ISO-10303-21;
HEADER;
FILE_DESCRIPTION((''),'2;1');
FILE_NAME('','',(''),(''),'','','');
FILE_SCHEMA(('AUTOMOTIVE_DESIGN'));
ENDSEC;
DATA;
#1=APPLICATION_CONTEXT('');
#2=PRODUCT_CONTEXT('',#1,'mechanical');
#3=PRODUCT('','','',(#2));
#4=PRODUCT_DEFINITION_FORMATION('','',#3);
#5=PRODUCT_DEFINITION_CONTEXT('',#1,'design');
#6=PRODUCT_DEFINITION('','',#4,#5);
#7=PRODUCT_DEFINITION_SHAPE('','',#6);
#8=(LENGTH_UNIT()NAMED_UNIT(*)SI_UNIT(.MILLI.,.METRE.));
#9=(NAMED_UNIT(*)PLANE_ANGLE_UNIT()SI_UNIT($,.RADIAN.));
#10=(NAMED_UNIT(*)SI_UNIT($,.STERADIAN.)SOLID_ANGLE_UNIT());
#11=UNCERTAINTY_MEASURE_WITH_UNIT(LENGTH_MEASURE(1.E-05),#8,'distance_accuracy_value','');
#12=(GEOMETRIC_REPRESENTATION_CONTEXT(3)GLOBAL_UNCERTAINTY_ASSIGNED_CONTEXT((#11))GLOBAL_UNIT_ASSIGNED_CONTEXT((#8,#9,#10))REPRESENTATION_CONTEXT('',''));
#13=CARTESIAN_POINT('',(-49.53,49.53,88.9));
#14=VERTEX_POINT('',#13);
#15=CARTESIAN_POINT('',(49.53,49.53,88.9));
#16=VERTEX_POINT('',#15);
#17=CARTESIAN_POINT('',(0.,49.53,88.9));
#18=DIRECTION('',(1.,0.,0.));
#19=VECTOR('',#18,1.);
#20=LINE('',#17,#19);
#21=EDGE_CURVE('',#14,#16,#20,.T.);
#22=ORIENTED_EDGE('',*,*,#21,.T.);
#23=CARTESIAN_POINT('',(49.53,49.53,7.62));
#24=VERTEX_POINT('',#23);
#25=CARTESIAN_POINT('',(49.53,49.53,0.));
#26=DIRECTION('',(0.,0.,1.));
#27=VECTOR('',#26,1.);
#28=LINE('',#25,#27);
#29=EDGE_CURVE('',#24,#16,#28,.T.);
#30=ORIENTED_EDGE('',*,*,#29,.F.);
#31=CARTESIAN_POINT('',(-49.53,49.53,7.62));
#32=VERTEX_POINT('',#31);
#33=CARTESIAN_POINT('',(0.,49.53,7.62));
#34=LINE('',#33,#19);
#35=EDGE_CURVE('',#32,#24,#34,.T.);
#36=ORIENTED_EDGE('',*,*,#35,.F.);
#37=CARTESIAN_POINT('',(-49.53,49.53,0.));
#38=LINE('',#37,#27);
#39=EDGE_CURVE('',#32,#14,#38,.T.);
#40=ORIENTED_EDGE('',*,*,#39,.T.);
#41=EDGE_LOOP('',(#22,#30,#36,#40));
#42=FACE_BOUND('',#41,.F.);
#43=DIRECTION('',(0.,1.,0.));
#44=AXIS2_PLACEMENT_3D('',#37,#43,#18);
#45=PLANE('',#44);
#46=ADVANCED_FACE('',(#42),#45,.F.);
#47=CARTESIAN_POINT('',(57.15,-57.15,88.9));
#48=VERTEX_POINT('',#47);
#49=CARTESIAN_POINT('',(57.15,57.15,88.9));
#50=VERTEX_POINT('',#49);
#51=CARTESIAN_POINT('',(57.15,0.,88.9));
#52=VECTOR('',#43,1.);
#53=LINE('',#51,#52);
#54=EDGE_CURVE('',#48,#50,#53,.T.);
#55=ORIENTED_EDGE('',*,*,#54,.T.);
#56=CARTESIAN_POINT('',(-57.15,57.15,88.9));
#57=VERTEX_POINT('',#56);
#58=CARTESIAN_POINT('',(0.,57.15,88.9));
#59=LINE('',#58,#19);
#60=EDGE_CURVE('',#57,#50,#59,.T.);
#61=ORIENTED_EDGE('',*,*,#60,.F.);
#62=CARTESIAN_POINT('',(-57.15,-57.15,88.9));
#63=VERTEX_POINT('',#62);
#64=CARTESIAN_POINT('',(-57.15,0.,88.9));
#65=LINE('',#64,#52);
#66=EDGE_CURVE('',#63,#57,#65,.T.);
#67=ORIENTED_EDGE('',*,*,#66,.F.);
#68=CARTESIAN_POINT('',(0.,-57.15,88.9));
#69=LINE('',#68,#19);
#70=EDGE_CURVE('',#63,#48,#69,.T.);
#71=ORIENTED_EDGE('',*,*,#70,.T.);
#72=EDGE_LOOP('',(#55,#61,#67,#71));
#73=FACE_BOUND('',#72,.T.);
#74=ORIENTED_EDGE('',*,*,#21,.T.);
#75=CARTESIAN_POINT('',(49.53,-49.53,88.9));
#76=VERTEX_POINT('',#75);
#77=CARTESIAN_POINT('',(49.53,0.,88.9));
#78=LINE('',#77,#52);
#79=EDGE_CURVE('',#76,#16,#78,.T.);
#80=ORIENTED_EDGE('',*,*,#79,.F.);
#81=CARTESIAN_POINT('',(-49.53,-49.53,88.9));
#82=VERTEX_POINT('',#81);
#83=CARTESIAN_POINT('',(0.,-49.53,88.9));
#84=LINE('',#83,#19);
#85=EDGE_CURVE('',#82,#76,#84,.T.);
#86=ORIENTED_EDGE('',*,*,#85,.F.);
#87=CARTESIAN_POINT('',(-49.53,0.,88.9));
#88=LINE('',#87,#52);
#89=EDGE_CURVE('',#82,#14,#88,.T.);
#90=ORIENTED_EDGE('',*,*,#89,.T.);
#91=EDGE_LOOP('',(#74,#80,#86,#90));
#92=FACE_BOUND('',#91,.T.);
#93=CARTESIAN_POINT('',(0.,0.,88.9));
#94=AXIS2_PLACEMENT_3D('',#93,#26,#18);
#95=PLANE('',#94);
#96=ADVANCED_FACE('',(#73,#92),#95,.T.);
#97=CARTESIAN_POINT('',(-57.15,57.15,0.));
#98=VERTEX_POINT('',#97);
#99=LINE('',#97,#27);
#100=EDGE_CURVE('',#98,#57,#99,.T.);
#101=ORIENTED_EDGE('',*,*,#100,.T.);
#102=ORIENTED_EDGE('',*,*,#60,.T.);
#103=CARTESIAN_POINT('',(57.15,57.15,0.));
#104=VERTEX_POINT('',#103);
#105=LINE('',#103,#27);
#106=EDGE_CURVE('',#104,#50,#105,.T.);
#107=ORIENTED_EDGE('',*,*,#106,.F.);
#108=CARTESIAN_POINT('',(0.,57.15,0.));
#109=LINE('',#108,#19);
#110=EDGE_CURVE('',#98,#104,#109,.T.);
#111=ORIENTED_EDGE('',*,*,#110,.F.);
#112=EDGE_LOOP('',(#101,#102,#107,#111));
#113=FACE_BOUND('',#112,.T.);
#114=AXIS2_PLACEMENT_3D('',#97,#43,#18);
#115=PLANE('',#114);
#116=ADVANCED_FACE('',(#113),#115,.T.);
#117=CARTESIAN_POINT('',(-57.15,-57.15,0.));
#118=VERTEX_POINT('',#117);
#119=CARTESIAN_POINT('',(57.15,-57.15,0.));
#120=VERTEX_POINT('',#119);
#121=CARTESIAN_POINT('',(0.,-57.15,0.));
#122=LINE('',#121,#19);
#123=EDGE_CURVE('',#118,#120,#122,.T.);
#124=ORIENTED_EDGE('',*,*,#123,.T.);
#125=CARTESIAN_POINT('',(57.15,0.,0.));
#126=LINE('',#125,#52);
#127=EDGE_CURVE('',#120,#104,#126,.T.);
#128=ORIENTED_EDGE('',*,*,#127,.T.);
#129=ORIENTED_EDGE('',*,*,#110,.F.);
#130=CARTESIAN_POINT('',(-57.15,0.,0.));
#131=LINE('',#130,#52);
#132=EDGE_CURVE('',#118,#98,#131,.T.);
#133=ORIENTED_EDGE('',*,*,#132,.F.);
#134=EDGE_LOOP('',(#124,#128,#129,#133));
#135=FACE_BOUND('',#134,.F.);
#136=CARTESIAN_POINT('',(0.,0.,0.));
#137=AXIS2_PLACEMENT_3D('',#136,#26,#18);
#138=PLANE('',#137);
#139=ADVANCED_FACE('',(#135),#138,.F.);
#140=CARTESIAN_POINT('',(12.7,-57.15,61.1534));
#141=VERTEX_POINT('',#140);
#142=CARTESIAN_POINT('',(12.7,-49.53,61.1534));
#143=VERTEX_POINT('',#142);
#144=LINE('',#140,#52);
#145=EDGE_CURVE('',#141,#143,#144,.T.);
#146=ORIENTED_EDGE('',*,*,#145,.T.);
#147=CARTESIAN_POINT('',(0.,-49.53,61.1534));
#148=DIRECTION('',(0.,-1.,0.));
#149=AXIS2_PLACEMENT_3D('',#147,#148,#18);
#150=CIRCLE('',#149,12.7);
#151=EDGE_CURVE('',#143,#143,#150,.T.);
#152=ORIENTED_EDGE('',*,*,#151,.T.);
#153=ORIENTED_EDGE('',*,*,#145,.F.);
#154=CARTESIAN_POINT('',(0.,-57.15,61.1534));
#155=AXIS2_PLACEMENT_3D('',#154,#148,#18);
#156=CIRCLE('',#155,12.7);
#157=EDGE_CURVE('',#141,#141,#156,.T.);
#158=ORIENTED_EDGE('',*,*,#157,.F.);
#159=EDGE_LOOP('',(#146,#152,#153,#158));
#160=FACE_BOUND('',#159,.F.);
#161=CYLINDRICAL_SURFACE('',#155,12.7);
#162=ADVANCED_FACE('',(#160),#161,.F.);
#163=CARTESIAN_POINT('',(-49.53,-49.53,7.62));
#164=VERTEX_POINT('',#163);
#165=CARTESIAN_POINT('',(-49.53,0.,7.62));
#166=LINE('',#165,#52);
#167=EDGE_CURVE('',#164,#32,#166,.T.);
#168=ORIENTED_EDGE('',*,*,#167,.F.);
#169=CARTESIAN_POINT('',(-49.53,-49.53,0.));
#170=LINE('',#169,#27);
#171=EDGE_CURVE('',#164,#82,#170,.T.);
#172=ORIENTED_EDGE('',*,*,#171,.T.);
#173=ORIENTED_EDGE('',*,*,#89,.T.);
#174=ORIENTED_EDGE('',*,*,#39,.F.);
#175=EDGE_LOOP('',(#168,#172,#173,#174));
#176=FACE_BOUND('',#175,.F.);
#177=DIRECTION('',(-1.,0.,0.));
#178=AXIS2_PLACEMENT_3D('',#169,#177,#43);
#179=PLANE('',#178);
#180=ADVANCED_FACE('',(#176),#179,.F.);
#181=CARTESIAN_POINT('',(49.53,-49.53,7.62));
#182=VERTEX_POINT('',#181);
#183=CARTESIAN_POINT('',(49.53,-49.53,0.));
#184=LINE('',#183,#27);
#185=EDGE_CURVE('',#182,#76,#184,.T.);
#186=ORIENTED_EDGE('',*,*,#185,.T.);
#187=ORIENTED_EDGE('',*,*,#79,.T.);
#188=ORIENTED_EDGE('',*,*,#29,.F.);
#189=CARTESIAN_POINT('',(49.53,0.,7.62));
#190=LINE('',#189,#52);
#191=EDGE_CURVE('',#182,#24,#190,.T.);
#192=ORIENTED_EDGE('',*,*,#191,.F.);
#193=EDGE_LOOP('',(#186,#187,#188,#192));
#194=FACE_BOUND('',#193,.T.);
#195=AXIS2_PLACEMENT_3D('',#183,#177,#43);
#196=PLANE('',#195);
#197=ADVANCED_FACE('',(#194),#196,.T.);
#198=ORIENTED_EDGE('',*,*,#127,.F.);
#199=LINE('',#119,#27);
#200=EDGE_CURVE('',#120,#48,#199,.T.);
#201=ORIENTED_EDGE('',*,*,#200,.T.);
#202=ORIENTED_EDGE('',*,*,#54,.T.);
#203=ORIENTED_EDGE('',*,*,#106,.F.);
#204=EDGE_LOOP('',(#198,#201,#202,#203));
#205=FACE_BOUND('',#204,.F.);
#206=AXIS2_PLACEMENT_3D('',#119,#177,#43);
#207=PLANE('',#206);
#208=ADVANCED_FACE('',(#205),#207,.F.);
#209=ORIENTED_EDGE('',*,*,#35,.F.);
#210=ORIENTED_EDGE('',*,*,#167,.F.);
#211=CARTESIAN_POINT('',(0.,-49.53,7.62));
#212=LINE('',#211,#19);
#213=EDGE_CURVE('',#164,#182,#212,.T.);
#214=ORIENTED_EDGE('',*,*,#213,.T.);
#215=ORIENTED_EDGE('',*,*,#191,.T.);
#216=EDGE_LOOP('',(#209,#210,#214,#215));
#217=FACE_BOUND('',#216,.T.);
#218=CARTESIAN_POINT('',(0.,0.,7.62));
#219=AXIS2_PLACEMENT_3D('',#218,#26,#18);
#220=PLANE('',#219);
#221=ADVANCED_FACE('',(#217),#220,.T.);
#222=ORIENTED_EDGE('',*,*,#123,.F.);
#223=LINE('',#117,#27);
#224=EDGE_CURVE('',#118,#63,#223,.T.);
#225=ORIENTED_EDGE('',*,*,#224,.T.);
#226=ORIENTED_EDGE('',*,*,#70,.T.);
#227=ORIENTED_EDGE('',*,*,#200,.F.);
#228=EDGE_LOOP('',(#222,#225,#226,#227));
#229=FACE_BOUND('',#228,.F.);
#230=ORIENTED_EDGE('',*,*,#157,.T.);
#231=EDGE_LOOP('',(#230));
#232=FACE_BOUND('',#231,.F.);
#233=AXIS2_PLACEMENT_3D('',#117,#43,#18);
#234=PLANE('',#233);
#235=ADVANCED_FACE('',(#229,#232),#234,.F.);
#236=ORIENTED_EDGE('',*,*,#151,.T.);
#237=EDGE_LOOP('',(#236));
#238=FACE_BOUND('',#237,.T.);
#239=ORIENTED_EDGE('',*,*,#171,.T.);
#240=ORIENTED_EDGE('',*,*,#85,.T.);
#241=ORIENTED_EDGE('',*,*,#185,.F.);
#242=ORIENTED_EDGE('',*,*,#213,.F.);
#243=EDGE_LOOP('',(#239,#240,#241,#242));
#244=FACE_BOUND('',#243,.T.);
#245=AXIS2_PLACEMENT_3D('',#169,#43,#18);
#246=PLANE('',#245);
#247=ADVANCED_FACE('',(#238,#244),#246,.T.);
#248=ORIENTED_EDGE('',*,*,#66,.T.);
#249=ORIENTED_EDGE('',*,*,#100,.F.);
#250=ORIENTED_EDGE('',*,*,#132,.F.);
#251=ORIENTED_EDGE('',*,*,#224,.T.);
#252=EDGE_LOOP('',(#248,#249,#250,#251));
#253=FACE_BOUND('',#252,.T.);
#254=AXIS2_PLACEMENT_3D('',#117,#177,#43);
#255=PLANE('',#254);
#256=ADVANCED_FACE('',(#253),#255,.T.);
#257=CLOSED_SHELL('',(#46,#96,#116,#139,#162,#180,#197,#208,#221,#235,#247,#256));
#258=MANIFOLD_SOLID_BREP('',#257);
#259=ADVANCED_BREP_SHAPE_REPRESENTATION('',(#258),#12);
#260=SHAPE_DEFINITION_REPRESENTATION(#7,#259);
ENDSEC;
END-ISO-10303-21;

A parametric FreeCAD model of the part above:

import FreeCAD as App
import Part
import Sketcher
from FreeCAD import Vector
Q = App.Units.Quantity

doc = App.newDocument("Part")
params = doc.addObject("Spreadsheet::Sheet", "Params")
for row, (alias, value) in enumerate([
    ("sketch1_width", "3.9 in"),
    ("pad1_length", "0.3 in"),
    ("sketch2_width", "4.5 in"),
    ("sketch2_width2", "3.9 in"),
    ("pad2_length", "3.5 in"),
    ("sketch3_diameter", "1 in"),
    ("pocket1_length", "19.127706 mm"),
], start=1):
    params.set(f"A{row}", alias)
    params.set(f"B{row}", "=" + value)
    params.setAlias(f"B{row}", alias)

body = doc.addObject("PartDesign::Body", "Body")

# Sketch on XY plane
sketch1 = body.newObject("Sketcher::SketchObject", "Sketch")
sketch1.AttachmentSupport = (doc.getObject("XY_Plane"), [""])
sketch1.MapMode = "FlatFace"
sketch1.addGeometry([
    Part.LineSegment(Vector(-49.53, 49.53, 0), Vector(-49.53, -49.53, 0)),
    Part.LineSegment(Vector(-49.53, -49.53, 0), Vector(49.53, -49.53, 0)),
    Part.LineSegment(Vector(49.53, -49.53, 0), Vector(49.53, 49.53, 0)),
    Part.LineSegment(Vector(49.53, 49.53, 0), Vector(-49.53, 49.53, 0)),
], False)
sketch1.addConstraint([
    Sketcher.Constraint("Coincident", 0, 2, 1, 1),
    Sketcher.Constraint("Coincident", 1, 2, 2, 1),
    Sketcher.Constraint("Coincident", 2, 2, 3, 1),
    Sketcher.Constraint("Coincident", 3, 2, 0, 1),
    Sketcher.Constraint("Vertical", 0),
    Sketcher.Constraint("Horizontal", 1),
    Sketcher.Constraint("Vertical", 2),
    Sketcher.Constraint("Horizontal", 3),
    Sketcher.Constraint("Symmetric", 0, 2, 2, 2, -1, 1),
    Sketcher.Constraint("Equal", 3, 0),
    Sketcher.Constraint("DistanceX", 1, 1, 1, 2, Q("3.9 in")),
])
sketch1.setExpression("Constraints[10]", "Params.sketch1_width")
pad1 = body.newObject("PartDesign::Pad", "Pad")
pad1.Profile = sketch1
pad1.setExpression("Length", "Params.pad1_length")

# Sketch on XY plane
sketch2 = body.newObject("Sketcher::SketchObject", "Sketch001")
sketch2.AttachmentSupport = (doc.getObject("XY_Plane"), [""])
sketch2.MapMode = "FlatFace"
sketch2.addGeometry([
    Part.LineSegment(Vector(-57.15, 57.15, 0), Vector(-57.15, -57.15, 0)),  # 0
    Part.LineSegment(Vector(-57.15, -57.15, 0), Vector(57.15, -57.15, 0)),  # 1
    Part.LineSegment(Vector(57.15, -57.15, 0), Vector(57.15, 57.15, 0)),  # 2
    Part.LineSegment(Vector(57.15, 57.15, 0), Vector(-57.15, 57.15, 0)),  # 3
    Part.LineSegment(Vector(49.53, -49.53, 0), Vector(-49.53, -49.53, 0)),  # 4
    Part.LineSegment(Vector(-49.53, -49.53, 0), Vector(-49.53, 49.53, 0)),  # 5
    Part.LineSegment(Vector(-49.53, 49.53, 0), Vector(49.53, 49.53, 0)),  # 6
    Part.LineSegment(Vector(49.53, 49.53, 0), Vector(49.53, -49.53, 0)),  # 7
], False)
sketch2.addConstraint([
    Sketcher.Constraint("Coincident", 0, 2, 1, 1),
    Sketcher.Constraint("Coincident", 1, 2, 2, 1),
    Sketcher.Constraint("Coincident", 2, 2, 3, 1),
    Sketcher.Constraint("Coincident", 3, 2, 0, 1),
    Sketcher.Constraint("Coincident", 4, 2, 5, 1),
    Sketcher.Constraint("Coincident", 5, 2, 6, 1),
    Sketcher.Constraint("Coincident", 6, 2, 7, 1),
    Sketcher.Constraint("Coincident", 7, 2, 4, 1),
    Sketcher.Constraint("Vertical", 0),
    Sketcher.Constraint("Horizontal", 1),
    Sketcher.Constraint("Vertical", 2),
    Sketcher.Constraint("Horizontal", 3),
    Sketcher.Constraint("Horizontal", 4),
    Sketcher.Constraint("Vertical", 5),
    Sketcher.Constraint("Horizontal", 6),
    Sketcher.Constraint("Vertical", 7),
    Sketcher.Constraint("Symmetric", 0, 2, 2, 2, -1, 1),
    Sketcher.Constraint("Symmetric", 4, 2, 6, 2, -1, 1),
    Sketcher.Constraint("Equal", 3, 0),
    Sketcher.Constraint("Equal", 6, 5),
    Sketcher.Constraint("DistanceX", 1, 1, 1, 2, Q("4.5 in")),
    Sketcher.Constraint("DistanceX", 4, 2, 4, 1, Q("3.9 in")),
])
sketch2.setExpression("Constraints[20]", "Params.sketch2_width")
sketch2.setExpression("Constraints[21]", "Params.sketch2_width2")
pad2 = body.newObject("PartDesign::Pad", "Pad001")
pad2.Profile = sketch2
pad2.setExpression("Length", "Params.pad2_length")

# Sketch on XZ plane
sketch3 = body.newObject("Sketcher::SketchObject", "Sketch002")
sketch3.AttachmentSupport = (doc.getObject("XZ_Plane"), [""])
sketch3.MapMode = "FlatFace"
sketch3.AttachmentOffset = App.Placement(Vector(0, 0, 2.25 * 25.4), App.Rotation())
sketch3.addGeometry(Part.Circle(Vector(0, 61.1534, 0), Vector(0, 0, 1), 12.7), False)
sketch3.addConstraint([
    Sketcher.Constraint("PointOnObject", 0, 3, -2),
    Sketcher.Constraint("Diameter", 0, Q("1 in")),
    Sketcher.Constraint("DistanceY", -1, 1, 0, 3, 61.1534),
])
sketch3.setExpression("Constraints[1]", "Params.sketch3_diameter")
pocket1 = body.newObject("PartDesign::Pocket", "Pocket")
pocket1.Profile = sketch3
pocket1.setExpression("Length", "Params.pocket1_length")

doc.recompute()
